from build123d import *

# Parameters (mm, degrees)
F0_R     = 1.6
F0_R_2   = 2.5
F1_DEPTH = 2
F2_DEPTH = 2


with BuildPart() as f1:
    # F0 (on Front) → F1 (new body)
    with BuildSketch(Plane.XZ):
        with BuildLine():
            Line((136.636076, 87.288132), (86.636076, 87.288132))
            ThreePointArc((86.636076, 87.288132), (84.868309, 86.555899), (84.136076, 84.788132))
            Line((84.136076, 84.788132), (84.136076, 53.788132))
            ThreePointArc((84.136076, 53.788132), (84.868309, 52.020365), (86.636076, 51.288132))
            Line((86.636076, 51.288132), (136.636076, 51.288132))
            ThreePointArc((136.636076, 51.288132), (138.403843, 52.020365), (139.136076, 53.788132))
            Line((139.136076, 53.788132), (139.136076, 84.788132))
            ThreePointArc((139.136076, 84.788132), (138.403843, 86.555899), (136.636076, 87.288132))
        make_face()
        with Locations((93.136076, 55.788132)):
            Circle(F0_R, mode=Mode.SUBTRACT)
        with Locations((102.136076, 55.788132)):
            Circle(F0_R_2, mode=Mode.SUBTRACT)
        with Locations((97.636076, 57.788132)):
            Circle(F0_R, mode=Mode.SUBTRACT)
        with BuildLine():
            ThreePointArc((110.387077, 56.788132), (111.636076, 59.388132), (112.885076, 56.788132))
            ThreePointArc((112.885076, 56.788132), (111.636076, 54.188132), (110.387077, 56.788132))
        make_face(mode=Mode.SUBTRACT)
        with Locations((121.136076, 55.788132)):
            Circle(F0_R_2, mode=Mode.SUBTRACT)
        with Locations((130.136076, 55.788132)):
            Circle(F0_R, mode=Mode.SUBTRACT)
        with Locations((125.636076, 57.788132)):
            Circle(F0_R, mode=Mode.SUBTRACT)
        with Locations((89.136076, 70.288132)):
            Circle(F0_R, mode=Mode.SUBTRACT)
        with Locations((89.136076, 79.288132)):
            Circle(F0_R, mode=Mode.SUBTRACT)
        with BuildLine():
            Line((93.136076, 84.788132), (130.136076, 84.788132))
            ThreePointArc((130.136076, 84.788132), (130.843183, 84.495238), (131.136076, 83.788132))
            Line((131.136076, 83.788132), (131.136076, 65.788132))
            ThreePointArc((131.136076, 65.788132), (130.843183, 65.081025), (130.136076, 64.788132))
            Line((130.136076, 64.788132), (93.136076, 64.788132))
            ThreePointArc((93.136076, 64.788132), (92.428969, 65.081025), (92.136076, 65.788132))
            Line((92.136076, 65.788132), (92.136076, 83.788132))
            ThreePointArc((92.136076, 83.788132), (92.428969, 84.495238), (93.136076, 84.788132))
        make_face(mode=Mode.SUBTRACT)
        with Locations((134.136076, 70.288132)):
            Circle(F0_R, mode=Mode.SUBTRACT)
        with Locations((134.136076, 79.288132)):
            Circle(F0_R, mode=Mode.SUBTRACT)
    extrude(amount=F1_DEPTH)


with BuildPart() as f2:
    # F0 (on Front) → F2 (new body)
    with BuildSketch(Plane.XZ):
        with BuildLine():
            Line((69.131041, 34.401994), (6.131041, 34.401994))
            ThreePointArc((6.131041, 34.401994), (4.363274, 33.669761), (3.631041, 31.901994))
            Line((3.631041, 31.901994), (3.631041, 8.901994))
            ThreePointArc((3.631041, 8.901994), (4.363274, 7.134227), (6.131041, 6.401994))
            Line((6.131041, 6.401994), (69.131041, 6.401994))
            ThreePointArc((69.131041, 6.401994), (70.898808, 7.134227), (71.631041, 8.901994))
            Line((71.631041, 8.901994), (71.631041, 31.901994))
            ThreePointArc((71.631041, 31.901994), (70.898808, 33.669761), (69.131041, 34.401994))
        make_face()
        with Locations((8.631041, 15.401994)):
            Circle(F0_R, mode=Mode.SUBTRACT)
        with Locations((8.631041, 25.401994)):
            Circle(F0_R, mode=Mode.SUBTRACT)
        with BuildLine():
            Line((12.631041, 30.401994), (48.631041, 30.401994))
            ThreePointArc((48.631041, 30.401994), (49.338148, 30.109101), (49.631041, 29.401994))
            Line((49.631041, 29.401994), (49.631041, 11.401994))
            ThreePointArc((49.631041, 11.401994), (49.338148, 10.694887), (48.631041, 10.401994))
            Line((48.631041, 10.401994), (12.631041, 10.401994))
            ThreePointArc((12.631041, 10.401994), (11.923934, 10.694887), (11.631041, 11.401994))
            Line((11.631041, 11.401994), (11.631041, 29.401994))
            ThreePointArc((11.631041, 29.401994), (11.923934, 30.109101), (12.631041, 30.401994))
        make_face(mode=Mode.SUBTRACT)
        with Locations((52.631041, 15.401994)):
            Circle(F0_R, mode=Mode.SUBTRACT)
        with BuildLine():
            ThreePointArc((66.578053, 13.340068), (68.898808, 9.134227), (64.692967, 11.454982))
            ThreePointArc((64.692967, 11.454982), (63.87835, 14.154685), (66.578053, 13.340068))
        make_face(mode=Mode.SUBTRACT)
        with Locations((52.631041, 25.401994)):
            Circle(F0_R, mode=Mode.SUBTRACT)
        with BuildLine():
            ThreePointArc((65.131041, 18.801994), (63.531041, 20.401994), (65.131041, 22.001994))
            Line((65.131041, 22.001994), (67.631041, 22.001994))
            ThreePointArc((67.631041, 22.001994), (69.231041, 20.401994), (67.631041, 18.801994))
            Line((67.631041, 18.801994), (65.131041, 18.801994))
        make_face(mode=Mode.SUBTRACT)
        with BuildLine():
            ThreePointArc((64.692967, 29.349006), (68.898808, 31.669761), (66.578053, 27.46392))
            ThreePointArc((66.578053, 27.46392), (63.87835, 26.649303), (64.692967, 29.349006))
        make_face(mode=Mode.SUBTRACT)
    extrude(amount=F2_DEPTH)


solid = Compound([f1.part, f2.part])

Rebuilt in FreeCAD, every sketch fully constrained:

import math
import FreeCAD as App
import Part
import Sketcher

V = App.Vector

doc = App.newDocument("Part")
body = doc.addObject("PartDesign::Body", "Body")

# Sketch on XZ plane
sketch1 = doc.addObject("Sketcher::SketchObject", "Sketch")
body.addObject(sketch1)
sketch1.AttachmentSupport = (doc.XZ_Plane, [""])
sketch1.MapMode = "FlatFace"
sketch1.addGeometry([
    Part.LineSegment(V(136.6, 87.3, 0), V(86.6, 87.3, 0)),  # 0
    Part.ArcOfCircle(Part.Circle(V(86.6, 84.8, 0), V(0, 0, 1), 2.5), math.radians(90), math.radians(180)),  # 1
    Part.LineSegment(V(84.1, 84.8, 0), V(84.1, 53.8, 0)),  # 2
    Part.ArcOfCircle(Part.Circle(V(86.6, 53.8, 0), V(0, 0, 1), 2.5), math.radians(180), math.radians(270)),  # 3
    Part.LineSegment(V(86.6, 51.3, 0), V(136.6, 51.3, 0)),  # 4
    Part.ArcOfCircle(Part.Circle(V(136.6, 53.8, 0), V(0, 0, 1), 2.5), math.radians(-90), math.radians(0)),  # 5
    Part.LineSegment(V(139.1, 53.8, 0), V(139.1, 84.8, 0)),  # 6
    Part.ArcOfCircle(Part.Circle(V(136.6, 84.8, 0), V(0, 0, 1), 2.5), math.radians(0), math.radians(90)),  # 7
    Part.Circle(V(93.1, 55.8, 0), V(0, 0, 1), 1.6),  # 8
    Part.Circle(V(97.6, 57.8, 0), V(0, 0, 1), 1.6),  # 9
    Part.Circle(V(102.1, 55.8, 0), V(0, 0, 1), 2.5),  # 10
    Part.ArcOfCircle(Part.Circle(V(111.6, 55.8, 0), V(0, 0, 1), 1.6), math.radians(141), math.radians(399)),  # 11
    Part.ArcOfCircle(Part.Circle(V(111.6, 57.8, 0), V(0, 0, 1), 1.6), math.radians(-39), math.radians(219)),  # 12
    Part.Circle(V(121.1, 55.8, 0), V(0, 0, 1), 2.5),  # 13
    Part.Circle(V(130.1, 55.8, 0), V(0, 0, 1), 1.6),  # 14
    Part.Circle(V(125.6, 57.8, 0), V(0, 0, 1), 1.6),  # 15
    Part.Circle(V(89.1, 70.3, 0), V(0, 0, 1), 1.6),  # 16
    Part.Circle(V(89.1, 79.3, 0), V(0, 0, 1), 1.6),  # 17
    Part.ArcOfCircle(Part.Circle(V(93.1, 83.8, 0), V(0, 0, 1), 1), math.radians(90), math.radians(180)),  # 18
    Part.LineSegment(V(93.1, 84.8, 0), V(130.1, 84.8, 0)),  # 19
    Part.ArcOfCircle(Part.Circle(V(130.1, 83.8, 0), V(0, 0, 1), 1), math.radians(0), math.radians(90)),  # 20
    Part.LineSegment(V(131.1, 83.8, 0), V(131.1, 65.8, 0)),  # 21
    Part.ArcOfCircle(Part.Circle(V(130.1, 65.8, 0), V(0, 0, 1), 1), math.radians(-90), math.radians(0)),  # 22
    Part.LineSegment(V(130.1, 64.8, 0), V(93.1, 64.8, 0)),  # 23
    Part.ArcOfCircle(Part.Circle(V(93.1, 65.8, 0), V(0, 0, 1), 1), math.radians(180), math.radians(270)),  # 24
    Part.LineSegment(V(92.1, 65.8, 0), V(92.1, 83.8, 0)),  # 25
    Part.Circle(V(134.1, 70.3, 0), V(0, 0, 1), 1.6),  # 26
    Part.Circle(V(134.1, 79.3, 0), V(0, 0, 1), 1.6),  # 27
], False)
sketch1.addConstraint([
    Sketcher.Constraint("Tangent", 0, 2, 1, 1),
    Sketcher.Constraint("Tangent", 1, 2, 2, 1),
    Sketcher.Constraint("Tangent", 2, 2, 3, 1),
    Sketcher.Constraint("Tangent", 3, 2, 4, 1),
    Sketcher.Constraint("Tangent", 4, 2, 5, 1),
    Sketcher.Constraint("Tangent", 5, 2, 6, 1),
    Sketcher.Constraint("Tangent", 6, 2, 7, 1),
    Sketcher.Constraint("Tangent", 7, 2, 0, 1),
    Sketcher.Constraint("Coincident", 11, 1, 12, 2),
    Sketcher.Constraint("Coincident", 12, 1, 11, 2),
    Sketcher.Constraint("Tangent", 18, 1, 19, 1),
    Sketcher.Constraint("Tangent", 19, 2, 20, 2),
    Sketcher.Constraint("Tangent", 20, 1, 21, 1),
    Sketcher.Constraint("Tangent", 21, 2, 22, 2),
    Sketcher.Constraint("Tangent", 22, 1, 23, 1),
    Sketcher.Constraint("Tangent", 23, 2, 24, 2),
    Sketcher.Constraint("Tangent", 24, 1, 25, 1),
    Sketcher.Constraint("Tangent", 25, 2, 18, 2),
    Sketcher.Constraint("Horizontal", 0),
    Sketcher.Constraint("Vertical", 2),
    Sketcher.Constraint("Horizontal", 4),
    Sketcher.Constraint("Vertical", 6),
    Sketcher.Constraint("Horizontal", 19),
    Sketcher.Constraint("Vertical", 21),
    Sketcher.Constraint("Horizontal", 23),
    Sketcher.Constraint("Vertical", 25),
    Sketcher.Constraint("Equal", 1, 3),
    Sketcher.Constraint("Equal", 3, 5),
    Sketcher.Constraint("Equal", 5, 7),
    Sketcher.Constraint("Equal", 8, 9),
    Sketcher.Constraint("Equal", 7, 10),
    Sketcher.Constraint("Equal", 9, 11),
    Sketcher.Constraint("Equal", 11, 12),
    Sketcher.Constraint("Equal", 10, 13),
    Sketcher.Constraint("Equal", 12, 14),
    Sketcher.Constraint("Equal", 14, 15),
    Sketcher.Constraint("Equal", 15, 16),
    Sketcher.Constraint("Equal", 16, 17),
    Sketcher.Constraint("Equal", 18, 20),
    Sketcher.Constraint("Equal", 20, 22),
    Sketcher.Constraint("Equal", 22, 24),
    Sketcher.Constraint("Equal", 17, 26),
    Sketcher.Constraint("Equal", 26, 27),
    Sketcher.Constraint("Horizontal", 8, 3, 10, 3),
    Sketcher.Constraint("Horizontal", 10, 3, 11, 3),
    Sketcher.Constraint("Horizontal", 9, 3, 12, 3),
    Sketcher.Constraint("Horizontal", 11, 3, 13, 3),
    Sketcher.Constraint("Horizontal", 13, 3, 14, 3),
    Sketcher.Constraint("Horizontal", 12, 3, 15, 3),
    Sketcher.Constraint("Horizontal", 16, 3, 26, 3),
    Sketcher.Constraint("Horizontal", 17, 3, 27, 3),
    Sketcher.Constraint("Horizontal", 11, 1, 12, 1),
    Sketcher.Constraint("Horizontal", 6, 2, 18, 1),
    Sketcher.Constraint("Vertical", 16, 3, 17, 3),
    Sketcher.Constraint("Vertical", 8, 3, 18, 3),
    Sketcher.Constraint("Vertical", 14, 3, 20, 3),
    Sketcher.Constraint("Vertical", 26, 3, 27, 3),
    Sketcher.Constraint("Diameter", 10, 5.0),
    Sketcher.Constraint("Radius", 18, 1.000001),
    Sketcher.Constraint("Diameter", 8, 3.2),
    Sketcher.Constraint("DistanceX", 0, 2, 0, 1, 50.0),
    Sketcher.Constraint("DistanceX", 19, 1, 19, 2, 37.0),
    Sketcher.Constraint("DistanceY", 2, 2, 2, 1, 31.0),
    Sketcher.Constraint("DistanceY", 21, 2, 21, 1, 18.0),
    Sketcher.Constraint("DistanceY", 3, 3, 8, 3, 2.0),
    Sketcher.Constraint("DistanceY", 8, 3, 9, 3, 2.0),
    Sketcher.Constraint("DistanceX", 3, 3, 9, 3, 11.0),
    Sketcher.Constraint("DistanceX", 8, 3, 10, 3, 9.0),
    Sketcher.Constraint("DistanceX", 9, 3, 11, 3, 14.0),
    Sketcher.Constraint("DistanceX", 10, 3, 13, 3, 19.0),
    Sketcher.Constraint("DistanceX", 15, 3, 5, 3, 11.0),
    Sketcher.Constraint("DistanceX", 16, 3, 8, 3, 4.0),
    Sketcher.Constraint("DistanceY", 16, 3, 17, 3, 9.0),
    Sketcher.Constraint("DistanceX", 22, 3, 26, 3, 3.999999),
    Sketcher.Constraint("DistanceY", 17, 3, 0, 2, 8.0),
    Sketcher.Constraint("DistanceX", 1, 2, 17, 3, 5.0),
    Sketcher.Constraint("DistanceY", -1, 1, 3, 3, 53.788132),
    Sketcher.Constraint("DistanceX", -1, 1, 1, 3, 86.636076),
])
pad1 = doc.addObject("PartDesign::Pad", "Pad")
body.addObject(pad1)
pad1.Profile = sketch1
pad1.Length = 2
body2 = doc.addObject("PartDesign::Body", "Body001")

# Sketch on XZ plane
sketch2 = doc.addObject("Sketcher::SketchObject", "Sketch001")
body2.addObject(sketch2)
sketch2.AttachmentSupport = (doc.getObject("XZ_Plane001"), [""])
sketch2.MapMode = "FlatFace"
sketch2.addGeometry([
    Part.LineSegment(V(69.1, 34.4, 0), V(6.1, 34.4, 0)),  # 0
    Part.ArcOfCircle(Part.Circle(V(6.1, 31.9, 0), V(0, 0, 1), 2.5), math.radians(90), math.radians(180)),  # 1
    Part.LineSegment(V(3.6, 31.9, 0), V(3.6, 8.9, 0)),  # 2
    Part.ArcOfCircle(Part.Circle(V(6.1, 8.9, 0), V(0, 0, 1), 2.5), math.radians(180), math.radians(270)),  # 3
    Part.LineSegment(V(6.1, 6.4, 0), V(69.1, 6.4, 0)),  # 4
    Part.ArcOfCircle(Part.Circle(V(69.1, 8.9, 0), V(0, 0, 1), 2.5), math.radians(-90), math.radians(0)),  # 5
    Part.LineSegment(V(71.6, 8.9, 0), V(71.6, 31.9, 0)),  # 6
    Part.ArcOfCircle(Part.Circle(V(69.1, 31.9, 0), V(0, 0, 1), 2.5), math.radians(0), math.radians(90)),  # 7
    Part.Circle(V(8.6, 15.4, 0), V(0, 0, 1), 1.6),  # 8
    Part.ArcOfCircle(Part.Circle(V(65, 13, 0), V(0, 0, 1), 1.6), math.radians(11), math.radians(259)),  # 9
    Part.ArcOfCircle(Part.Circle(V(67.1, 10.9, 0), V(0, 0, 1), 2.5), math.radians(167), math.radians(463)),  # 10
    Part.Circle(V(52.6, 15.4, 0), V(0, 0, 1), 1.6),  # 11
    Part.LineSegment(V(67.6, 18.8, 0), V(65.1, 18.8, 0)),  # 12
    Part.ArcOfCircle(Part.Circle(V(65.1, 20.4, 0), V(0, 0, 1), 1.6), math.radians(90), math.radians(270)),  # 13
    Part.LineSegment(V(65.1, 22, 0), V(67.6, 22, 0)),  # 14
    Part.ArcOfCircle(Part.Circle(V(67.6, 20.4, 0), V(0, 0, 1), 1.6), math.radians(-90), math.radians(90)),  # 15
    Part.Circle(V(8.6, 25.4, 0), V(0, 0, 1), 1.6),  # 16
    Part.ArcOfCircle(Part.Circle(V(12.6, 29.4, 0), V(0, 0, 1), 1), math.radians(90), math.radians(180)),  # 17
    Part.LineSegment(V(12.6, 30.4, 0), V(48.6, 30.4, 0)),  # 18
    Part.ArcOfCircle(Part.Circle(V(48.6, 29.4, 0), V(0, 0, 1), 1), math.radians(0), math.radians(90)),  # 19
    Part.LineSegment(V(49.6, 29.4, 0), V(49.6, 11.4, 0)),  # 20
    Part.ArcOfCircle(Part.Circle(V(48.6, 11.4, 0), V(0, 0, 1), 1), math.radians(-90), math.radians(0)),  # 21
    Part.LineSegment(V(48.6, 10.4, 0), V(12.6, 10.4, 0)),  # 22
    Part.ArcOfCircle(Part.Circle(V(12.6, 11.4, 0), V(0, 0, 1), 1), math.radians(180), math.radians(270)),  # 23
    Part.LineSegment(V(11.6, 11.4, 0), V(11.6, 29.4, 0)),  # 24
    Part.Circle(V(52.6, 25.4, 0), V(0, 0, 1), 1.6),  # 25
    Part.ArcOfCircle(Part.Circle(V(65, 27.8, 0), V(0, 0, 1), 1.6), math.radians(101), math.radians(349)),  # 26
    Part.ArcOfCircle(Part.Circle(V(67.1, 29.9, 0), V(0, 0, 1), 2.5), math.radians(-103), math.radians(193)),  # 27
], False)
sketch2.addConstraint([
    Sketcher.Constraint("Tangent", 0, 2, 1, 1),
    Sketcher.Constraint("Tangent", 1, 2, 2, 1),
    Sketcher.Constraint("Tangent", 2, 2, 3, 1),
    Sketcher.Constraint("Tangent", 3, 2, 4, 1),
    Sketcher.Constraint("Tangent", 4, 2, 5, 1),
    Sketcher.Constraint("Tangent", 5, 2, 6, 1),
    Sketcher.Constraint("Tangent", 6, 2, 7, 1),
    Sketcher.Constraint("Tangent", 7, 2, 0, 1),
    Sketcher.Constraint("Coincident", 9, 1, 10, 2),
    Sketcher.Constraint("Coincident", 10, 1, 9, 2),
    Sketcher.Constraint("Tangent", 12, 2, 13, 2),
    Sketcher.Constraint("Tangent", 13, 1, 14, 1),
    Sketcher.Constraint("Tangent", 14, 2, 15, 2),
    Sketcher.Constraint("Tangent", 15, 1, 12, 1),
    Sketcher.Constraint("Tangent", 17, 1, 18, 1),
    Sketcher.Constraint("Tangent", 18, 2, 19, 2),
    Sketcher.Constraint("Tangent", 19, 1, 20, 1),
    Sketcher.Constraint("Tangent", 20, 2, 21, 2),
    Sketcher.Constraint("Tangent", 21, 1, 22, 1),
    Sketcher.Constraint("Tangent", 22, 2, 23, 2),
    Sketcher.Constraint("Tangent", 23, 1, 24, 1),
    Sketcher.Constraint("Tangent", 24, 2, 17, 2),
    Sketcher.Constraint("Coincident", 26, 1, 27, 2),
    Sketcher.Constraint("Coincident", 27, 1, 26, 2),
    Sketcher.Constraint("Horizontal", 0),
    Sketcher.Constraint("Vertical", 2),
    Sketcher.Constraint("Horizontal", 4),
    Sketcher.Constraint("Vertical", 6),
    Sketcher.Constraint("Horizontal", 12),
    Sketcher.Constraint("Horizontal", 14),
    Sketcher.Constraint("Horizontal", 18),
    Sketcher.Constraint("Vertical", 20),
    Sketcher.Constraint("Horizontal", 22),
    Sketcher.Constraint("Vertical", 24),
    Sketcher.Constraint("Equal", 1, 3),
    Sketcher.Constraint("Equal", 3, 5),
    Sketcher.Constraint("Equal", 5, 7),
    Sketcher.Constraint("Equal", 8, 9),
    Sketcher.Constraint("Equal", 7, 10),
    Sketcher.Constraint("Equal", 9, 11),
    Sketcher.Constraint("Equal", 11, 13),
    Sketcher.Constraint("Equal", 15, 16),
    Sketcher.Constraint("Equal", 17, 19),
    Sketcher.Constraint("Equal", 19, 21),
    Sketcher.Constraint("Equal", 21, 23),
    Sketcher.Constraint("Equal", 16, 25),
    Sketcher.Constraint("Equal", 25, 26),
    Sketcher.Constraint("Equal", 10, 27),
    Sketcher.Constraint("Horizontal", 8, 3, 11, 3),
    Sketcher.Constraint("Horizontal", 16, 3, 25, 3),
    Sketcher.Constraint("Vertical", 8, 3, 16, 3),
    Sketcher.Constraint("Vertical", 11, 3, 25, 3),
    Sketcher.Constraint("Vertical", 9, 3, 26, 3),
    Sketcher.Constraint("Vertical", 10, 3, 27, 3),
    Sketcher.Constraint("Vertical", 10, 1, 26, 1),
    Sketcher.Constraint("Radius", 17, 0.999999),
    Sketcher.Constraint("Diameter", 8, 3.2),
    Sketcher.Constraint("Radius", 1, 2.5),
    Sketcher.Constraint("DistanceX", 0, 2, 0, 1, 63.0),
    Sketcher.Constraint("DistanceX", 18, 1, 18, 2, 36.0),
    Sketcher.Constraint("DistanceY", 2, 2, 2, 1, 23.0),
    Sketcher.Constraint("DistanceY", 20, 2, 20, 1, 18.0),
    Sketcher.Constraint("DistanceX", 12, 2, 12, 1, 2.5),
    Sketcher.Constraint("DistanceX", 10, 3, 5, 3, 2.0),
    Sketcher.Constraint("DistanceY", 5, 3, 10, 3, 2.0),
    Sketcher.Constraint("DistanceX", 8, 3, 11, 3, 44.0),
    Sketcher.Constraint("DistanceX", 13, 3, 10, 3, 2.0),
    Sketcher.Constraint("DistanceY", 11, 3, 13, 3, 5.0),
    Sketcher.Constraint("DistanceY", 8, 3, 16, 3, 10.0),
    Sketcher.Constraint("DistanceX", 16, 3, 17, 3, 3.999999),
    Sketcher.Constraint("DistanceY", 16, 3, 17, 3, 4.000001),
    Sketcher.Constraint("DistanceX", 19, 3, 15, 3, 18.999999),
    Sketcher.Constraint("DistanceY", 27, 3, 7, 3, 2.0),
    Sketcher.Constraint("DistanceY", 17, 3, 0, 2, 4.999999),
    Sketcher.Constraint("DistanceX", -1, 1, 1, 3, 6.131041),
    Sketcher.Constraint("DistanceX", -1, 1, 9, 3, 65.009721),
    Sketcher.Constraint("DistanceY", -1, 1, 10, 1, 11.454982),
    Sketcher.Constraint("DistanceY", -1, 1, 27, 1, 27.46392),
])
pad2 = doc.addObject("PartDesign::Pad", "Pad001")
body2.addObject(pad2)
pad2.Profile = sketch2
pad2.Length = 2

doc.recompute()
